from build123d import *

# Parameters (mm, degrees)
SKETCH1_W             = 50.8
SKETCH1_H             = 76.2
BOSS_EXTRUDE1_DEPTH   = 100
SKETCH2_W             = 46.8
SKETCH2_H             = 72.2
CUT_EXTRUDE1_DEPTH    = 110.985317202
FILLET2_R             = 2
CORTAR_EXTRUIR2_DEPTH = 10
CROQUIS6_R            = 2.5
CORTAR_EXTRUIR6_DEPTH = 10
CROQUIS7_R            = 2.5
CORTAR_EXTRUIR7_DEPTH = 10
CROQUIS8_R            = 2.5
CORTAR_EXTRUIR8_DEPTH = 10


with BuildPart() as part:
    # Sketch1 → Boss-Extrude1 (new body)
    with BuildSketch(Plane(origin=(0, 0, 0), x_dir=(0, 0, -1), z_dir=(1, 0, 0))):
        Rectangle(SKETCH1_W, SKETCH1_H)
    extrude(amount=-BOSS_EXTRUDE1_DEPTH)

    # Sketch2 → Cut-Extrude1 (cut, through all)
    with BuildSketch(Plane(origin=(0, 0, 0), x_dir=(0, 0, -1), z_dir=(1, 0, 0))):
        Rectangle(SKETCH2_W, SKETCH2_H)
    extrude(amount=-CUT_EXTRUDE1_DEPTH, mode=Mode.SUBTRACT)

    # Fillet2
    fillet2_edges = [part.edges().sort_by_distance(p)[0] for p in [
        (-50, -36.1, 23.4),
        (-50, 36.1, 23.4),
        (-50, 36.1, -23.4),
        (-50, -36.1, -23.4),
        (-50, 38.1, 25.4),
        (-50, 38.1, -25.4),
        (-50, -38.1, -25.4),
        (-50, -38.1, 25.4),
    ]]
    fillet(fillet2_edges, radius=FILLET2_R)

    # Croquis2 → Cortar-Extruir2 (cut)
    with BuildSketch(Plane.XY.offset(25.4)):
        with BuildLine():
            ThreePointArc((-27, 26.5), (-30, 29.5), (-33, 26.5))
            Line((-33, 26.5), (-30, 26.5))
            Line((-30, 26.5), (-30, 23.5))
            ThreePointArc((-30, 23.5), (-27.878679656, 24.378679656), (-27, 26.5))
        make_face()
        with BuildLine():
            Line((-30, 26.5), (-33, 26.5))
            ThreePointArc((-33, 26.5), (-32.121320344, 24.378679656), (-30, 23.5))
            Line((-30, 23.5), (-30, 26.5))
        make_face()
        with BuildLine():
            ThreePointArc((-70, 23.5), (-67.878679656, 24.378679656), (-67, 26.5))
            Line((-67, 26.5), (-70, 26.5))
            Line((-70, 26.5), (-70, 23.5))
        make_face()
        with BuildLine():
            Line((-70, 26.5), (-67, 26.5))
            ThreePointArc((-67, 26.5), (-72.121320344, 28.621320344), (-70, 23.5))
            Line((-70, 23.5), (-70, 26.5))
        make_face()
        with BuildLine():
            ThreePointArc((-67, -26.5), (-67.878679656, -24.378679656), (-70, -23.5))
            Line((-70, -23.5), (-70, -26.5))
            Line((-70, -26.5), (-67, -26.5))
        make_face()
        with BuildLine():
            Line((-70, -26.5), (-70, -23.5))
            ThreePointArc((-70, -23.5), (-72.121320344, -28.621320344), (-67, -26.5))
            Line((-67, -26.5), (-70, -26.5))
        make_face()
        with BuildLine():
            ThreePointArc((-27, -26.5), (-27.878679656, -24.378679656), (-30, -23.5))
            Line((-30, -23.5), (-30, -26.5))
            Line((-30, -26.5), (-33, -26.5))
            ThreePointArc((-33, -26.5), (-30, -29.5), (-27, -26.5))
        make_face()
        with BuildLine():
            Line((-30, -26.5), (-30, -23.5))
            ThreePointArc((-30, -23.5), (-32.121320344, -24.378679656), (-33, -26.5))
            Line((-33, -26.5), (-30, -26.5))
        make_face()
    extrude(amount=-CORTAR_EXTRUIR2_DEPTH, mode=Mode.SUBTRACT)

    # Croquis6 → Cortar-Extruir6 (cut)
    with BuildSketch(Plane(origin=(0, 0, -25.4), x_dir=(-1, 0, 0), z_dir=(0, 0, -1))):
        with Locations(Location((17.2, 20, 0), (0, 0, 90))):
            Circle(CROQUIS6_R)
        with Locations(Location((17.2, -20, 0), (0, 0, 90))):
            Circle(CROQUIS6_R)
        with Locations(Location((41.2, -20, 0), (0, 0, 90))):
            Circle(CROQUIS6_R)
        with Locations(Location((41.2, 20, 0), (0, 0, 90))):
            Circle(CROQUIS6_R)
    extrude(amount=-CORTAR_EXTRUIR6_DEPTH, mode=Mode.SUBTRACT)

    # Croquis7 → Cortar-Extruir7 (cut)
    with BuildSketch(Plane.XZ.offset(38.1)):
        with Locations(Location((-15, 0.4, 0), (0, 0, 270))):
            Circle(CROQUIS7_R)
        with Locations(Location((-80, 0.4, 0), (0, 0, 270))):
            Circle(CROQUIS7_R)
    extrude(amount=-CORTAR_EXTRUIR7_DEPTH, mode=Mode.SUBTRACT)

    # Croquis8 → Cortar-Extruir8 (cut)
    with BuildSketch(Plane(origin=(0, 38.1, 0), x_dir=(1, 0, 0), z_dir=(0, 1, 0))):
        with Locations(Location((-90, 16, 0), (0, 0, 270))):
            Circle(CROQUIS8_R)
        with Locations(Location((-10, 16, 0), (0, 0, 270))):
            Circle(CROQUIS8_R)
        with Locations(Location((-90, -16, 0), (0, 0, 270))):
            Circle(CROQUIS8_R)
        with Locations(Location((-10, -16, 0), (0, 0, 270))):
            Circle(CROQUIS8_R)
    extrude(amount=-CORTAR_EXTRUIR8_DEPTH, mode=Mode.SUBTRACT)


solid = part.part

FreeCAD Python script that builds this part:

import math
import FreeCAD as App
import Part
import Sketcher

V = App.Vector


def edges_at(feature, points):
    """Names of the edges that pass closest to the given points."""
    edges = feature.Shape.Edges
    near = lambda p: min(range(len(edges)), key=lambda i: edges[i].distToShape(Part.Vertex(*p))[0])
    return sorted({f"Edge{near(p) + 1}" for p in points})


def add_polygon(sketch, points):
    """Adds a closed chain of lines whose ends are joined by coincident constraints."""
    first, n = sketch.GeometryCount, len(points)
    for a, b in zip(points, points[1:] + points[:1]):
        sketch.addGeometry(Part.LineSegment(App.Vector(*a, 0), App.Vector(*b, 0)), False)
    for i in range(n):
        sketch.addConstraint(Sketcher.Constraint("Coincident", first + i, 2, first + (i + 1) % n, 1))

doc = App.newDocument("Part")
body = doc.addObject("PartDesign::Body", "Body")

# Sketch on YZ plane
sketch1 = body.newObject("Sketcher::SketchObject", "Sketch")
sketch1.AttachmentSupport = (doc.getObject("YZ_Plane"), [""])
sketch1.MapMode = "FlatFace"
add_polygon(sketch1, [(38.1, 25.4), (-38.1, 25.4), (-38.1, -25.4), (38.1, -25.4)])  # lines 0-3
sketch1.addConstraint(Sketcher.Constraint("Horizontal", 0))
sketch1.addConstraint(Sketcher.Constraint("Vertical", 1))
sketch1.addConstraint(Sketcher.Constraint("Horizontal", 2))
sketch1.addConstraint(Sketcher.Constraint("Vertical", 3))
sketch1.addConstraint(Sketcher.Constraint("Symmetric", 0, 2, 2, 2, -1, 1))
sketch1.addConstraint(Sketcher.Constraint("DistanceX", 0, 2, 0, 1, 76.2))
sketch1.addConstraint(Sketcher.Constraint("DistanceY", 1, 2, 1, 1, 50.8))
pad1 = body.newObject("PartDesign::Pad", "Pad")
pad1.Profile = sketch1
pad1.Length = 100
pad1.Reversed = True

# Sketch on YZ plane
sketch2 = body.newObject("Sketcher::SketchObject", "Sketch001")
sketch2.AttachmentSupport = (doc.getObject("YZ_Plane"), [""])
sketch2.MapMode = "FlatFace"
add_polygon(sketch2, [(36.1, 23.4), (-36.1, 23.4), (-36.1, -23.4), (36.1, -23.4)])  # lines 0-3
sketch2.addConstraint(Sketcher.Constraint("Horizontal", 0))
sketch2.addConstraint(Sketcher.Constraint("Vertical", 1))
sketch2.addConstraint(Sketcher.Constraint("Horizontal", 2))
sketch2.addConstraint(Sketcher.Constraint("Vertical", 3))
sketch2.addConstraint(Sketcher.Constraint("Symmetric", 0, 2, 2, 2, -1, 1))
sketch2.addConstraint(Sketcher.Constraint("DistanceX", 0, 2, 0, 1, 72.2))
sketch2.addConstraint(Sketcher.Constraint("DistanceY", 1, 2, 1, 1, 46.8))
pocket1 = body.newObject("PartDesign::Pocket", "Pocket")
pocket1.Profile = sketch2
pocket1.Type = "ThroughAll"
doc.recompute()

fillet = body.newObject("PartDesign::Fillet", "Fillet")
fillet.Base = (pocket1, edges_at(pocket1, [
    (-50, -36.1, 23.4),
    (-50, 36.1, 23.4),
    (-50, 36.1, -23.4),
    (-50, -36.1, -23.4),
    (-50, 38.1, 25.4),
    (-50, 38.1, -25.4),
    (-50, -38.1, -25.4),
    (-50, -38.1, 25.4),
]))
fillet.Radius = 2

# Sketch on XY plane
sketch3 = body.newObject("Sketcher::SketchObject", "Sketch002")
sketch3.AttachmentSupport = (doc.getObject("XY_Plane"), [""])
sketch3.MapMode = "FlatFace"
sketch3.AttachmentOffset = App.Placement(V(0, 0, 25.4), App.Rotation())
sketch3.addGeometry(Part.ArcOfCircle(Part.Circle(V(-30, 26.5, 0), V(0, 0, 1), 3), math.radians(0), math.radians(180)), False)
sketch3.addGeometry(Part.ArcOfCircle(Part.Circle(V(-30, 26.5, 0), V(0, 0, 1), 3), math.radians(180), math.radians(270)), False)
sketch3.addGeometry(Part.ArcOfCircle(Part.Circle(V(-30, 26.5, 0), V(0, 0, 1), 3), math.radians(-90), math.radians(0)), False)
sketch3.addGeometry(Part.ArcOfCircle(Part.Circle(V(-70, 26.5, 0), V(0, 0, 1), 3), math.radians(-90), math.radians(0)), False)
sketch3.addGeometry(Part.ArcOfCircle(Part.Circle(V(-70, 26.5, 0), V(0, 0, 1), 3), math.radians(0), math.radians(270)), False)
sketch3.addGeometry(Part.ArcOfCircle(Part.Circle(V(-70, -26.5, 0), V(0, 0, 1), 3), math.radians(0), math.radians(90)), False)
sketch3.addGeometry(Part.ArcOfCircle(Part.Circle(V(-70, -26.5, 0), V(0, 0, 1), 3), math.radians(90), math.radians(360)), False)
sketch3.addGeometry(Part.ArcOfCircle(Part.Circle(V(-30, -26.5, 0), V(0, 0, 1), 3), math.radians(0), math.radians(90)), False)
sketch3.addGeometry(Part.ArcOfCircle(Part.Circle(V(-30, -26.5, 0), V(0, 0, 1), 3), math.radians(90), math.radians(180)), False)
sketch3.addGeometry(Part.ArcOfCircle(Part.Circle(V(-30, -26.5, 0), V(0, 0, 1), 3), math.radians(180), math.radians(360)), False)
sketch3.addConstraint(Sketcher.Constraint("Tangent", 0, 2, 1, 1))
sketch3.addConstraint(Sketcher.Constraint("Tangent", 1, 2, 2, 1))
sketch3.addConstraint(Sketcher.Constraint("Tangent", 2, 2, 0, 1))
sketch3.addConstraint(Sketcher.Constraint("Tangent", 3, 1, 4, 2))
sketch3.addConstraint(Sketcher.Constraint("Coincident", 4, 1, 3, 2))
sketch3.addConstraint(Sketcher.Constraint("Tangent", 5, 1, 6, 2))
sketch3.addConstraint(Sketcher.Constraint("Coincident", 6, 1, 5, 2))
sketch3.addConstraint(Sketcher.Constraint("Tangent", 7, 2, 8, 1))
sketch3.addConstraint(Sketcher.Constraint("Tangent", 8, 2, 9, 1))
sketch3.addConstraint(Sketcher.Constraint("Tangent", 9, 2, 7, 1))
sketch3.addConstraint(Sketcher.Constraint("Equal", 2, 3))
sketch3.addConstraint(Sketcher.Constraint("Equal", 4, 5))
sketch3.addConstraint(Sketcher.Constraint("Equal", 6, 7))
sketch3.addConstraint(Sketcher.Constraint("Symmetric", 3, 3, 5, 3, -1))
sketch3.addConstraint(Sketcher.Constraint("Symmetric", 0, 3, 7, 3, -1))
sketch3.addConstraint(Sketcher.Constraint("Horizontal", 2, 3, 3, 3))
sketch3.addConstraint(Sketcher.Constraint("Horizontal", 4, 3, 0, 2))
sketch3.addConstraint(Sketcher.Constraint("Horizontal", 0, 2, 2, 2))
sketch3.addConstraint(Sketcher.Constraint("Horizontal", 2, 2, 4, 1))
sketch3.addConstraint(Sketcher.Constraint("Horizontal", 9, 3, 5, 1))
sketch3.addConstraint(Sketcher.Constraint("Horizontal", 5, 1, 8, 2))
sketch3.addConstraint(Sketcher.Constraint("Horizontal", 8, 2, 9, 2))
sketch3.addConstraint(Sketcher.Constraint("Vertical", 9, 3, 1, 2))
sketch3.addConstraint(Sketcher.Constraint("Vertical", 6, 3, 3, 1))
sketch3.addConstraint(Sketcher.Constraint("Vertical", 3, 1, 6, 1))
sketch3.addConstraint(Sketcher.Constraint("Vertical", 1, 2, 7, 2))
sketch3.addConstraint(Sketcher.Constraint("Radius", 0, 3.0))
sketch3.addConstraint(Sketcher.Constraint("DistanceX", 0, 3, -1, 1, 30.0))
sketch3.addConstraint(Sketcher.Constraint("DistanceX", 3, 3, -1, 1, 70.0))
sketch3.addConstraint(Sketcher.Constraint("DistanceY", 5, 3, 3, 3, 53.0))
pocket2 = body.newObject("PartDesign::Pocket", "Pocket001")
pocket2.Profile = sketch3
pocket2.Length = 10

# Sketch on XY plane
sketch4 = body.newObject("Sketcher::SketchObject", "Sketch003")
sketch4.AttachmentSupport = (doc.getObject("XY_Plane"), [""])
sketch4.MapMode = "FlatFace"
sketch4.AttachmentOffset = App.Placement(V(0, 0, -25.4), App.Rotation())
sketch4.addGeometry(Part.Circle(V(-17.2, 20, 0), V(0, 0, 1), 2.5), False)
sketch4.addGeometry(Part.Circle(V(-17.2, -20, 0), V(0, 0, 1), 2.5), False)
sketch4.addGeometry(Part.Circle(V(-41.2, -20, 0), V(0, 0, 1), 2.5), False)
sketch4.addGeometry(Part.Circle(V(-41.2, 20, 0), V(0, 0, 1), 2.5), False)
sketch4.addConstraint(Sketcher.Constraint("Equal", 0, 1))
sketch4.addConstraint(Sketcher.Constraint("Equal", 1, 2))
sketch4.addConstraint(Sketcher.Constraint("Equal", 2, 3))
sketch4.addConstraint(Sketcher.Constraint("Symmetric", 0, 3, 1, 3, -1))
sketch4.addConstraint(Sketcher.Constraint("Symmetric", 2, 3, 3, 3, -1))
sketch4.addConstraint(Sketcher.Constraint("Horizontal", 1, 3, 2, 3))
sketch4.addConstraint(Sketcher.Constraint("Diameter", 0, 5.0))
sketch4.addConstraint(Sketcher.Constraint("DistanceY", -1, 1, 0, 3, 20.0))
sketch4.addConstraint(Sketcher.Constraint("DistanceX", 2, 3, 1, 3, 24.0))
sketch4.addConstraint(Sketcher.Constraint("DistanceX", 0, 3, -1, 1, 17.2))
pocket3 = body.newObject("PartDesign::Pocket", "Pocket002")
pocket3.Profile = sketch4
pocket3.Length = 10
pocket3.Reversed = True

# Sketch on XZ plane
sketch5 = body.newObject("Sketcher::SketchObject", "Sketch004")
sketch5.AttachmentSupport = (doc.getObject("XZ_Plane"), [""])
sketch5.MapMode = "FlatFace"
sketch5.AttachmentOffset = App.Placement(V(0, 0, 38.1), App.Rotation())
sketch5.addGeometry(Part.Circle(V(-15, 0.4, 0), V(0, 0, 1), 2.5), False)
sketch5.addGeometry(Part.Circle(V(-80, 0.4, 0), V(0, 0, 1), 2.5), False)
sketch5.addConstraint(Sketcher.Constraint("Equal", 0, 1))
sketch5.addConstraint(Sketcher.Constraint("Horizontal", 0, 3, 1, 3))
sketch5.addConstraint(Sketcher.Constraint("Diameter", 0, 5.0))
sketch5.addConstraint(Sketcher.Constraint("DistanceX", 0, 3, -1, 1, 15.0))
sketch5.addConstraint(Sketcher.Constraint("DistanceX", 1, 3, -1, 1, 80.0))
sketch5.addConstraint(Sketcher.Constraint("DistanceY", -1, 1, 0, 3, 0.4))
pocket4 = body.newObject("PartDesign::Pocket", "Pocket003")
pocket4.Profile = sketch5
pocket4.Length = 10

# Sketch on XZ plane
sketch6 = body.newObject("Sketcher::SketchObject", "Sketch005")
sketch6.AttachmentSupport = (doc.getObject("XZ_Plane"), [""])
sketch6.MapMode = "FlatFace"
sketch6.AttachmentOffset = App.Placement(V(0, 0, -38.1), App.Rotation())
sketch6.addGeometry(Part.Circle(V(-90, -16, 0), V(0, 0, 1), 2.5), False)
sketch6.addGeometry(Part.Circle(V(-10, -16, 0), V(0, 0, 1), 2.5), False)
sketch6.addGeometry(Part.Circle(V(-90, 16, 0), V(0, 0, 1), 2.5), False)
sketch6.addGeometry(Part.Circle(V(-10, 16, 0), V(0, 0, 1), 2.5), False)
sketch6.addConstraint(Sketcher.Constraint("Equal", 0, 1))
sketch6.addConstraint(Sketcher.Constraint("Equal", 1, 2))
sketch6.addConstraint(Sketcher.Constraint("Equal", 2, 3))
sketch6.addConstraint(Sketcher.Constraint("Symmetric", 0, 3, 2, 3, -1))
sketch6.addConstraint(Sketcher.Constraint("Symmetric", 1, 3, 3, 3, -1))
sketch6.addConstraint(Sketcher.Constraint("Horizontal", 0, 3, 1, 3))
sketch6.addConstraint(Sketcher.Constraint("Diameter", 0, 5.0))
sketch6.addConstraint(Sketcher.Constraint("DistanceX", 0, 3, -1, 1, 90.0))
sketch6.addConstraint(Sketcher.Constraint("DistanceY", 0, 3, -1, 1, 16.0))
sketch6.addConstraint(Sketcher.Constraint("DistanceX", 1, 3, -1, 1, 10.0))
pocket5 = body.newObject("PartDesign::Pocket", "Pocket004")
pocket5.Profile = sketch6
pocket5.Length = 10
pocket5.Reversed = True

doc.recompute()
